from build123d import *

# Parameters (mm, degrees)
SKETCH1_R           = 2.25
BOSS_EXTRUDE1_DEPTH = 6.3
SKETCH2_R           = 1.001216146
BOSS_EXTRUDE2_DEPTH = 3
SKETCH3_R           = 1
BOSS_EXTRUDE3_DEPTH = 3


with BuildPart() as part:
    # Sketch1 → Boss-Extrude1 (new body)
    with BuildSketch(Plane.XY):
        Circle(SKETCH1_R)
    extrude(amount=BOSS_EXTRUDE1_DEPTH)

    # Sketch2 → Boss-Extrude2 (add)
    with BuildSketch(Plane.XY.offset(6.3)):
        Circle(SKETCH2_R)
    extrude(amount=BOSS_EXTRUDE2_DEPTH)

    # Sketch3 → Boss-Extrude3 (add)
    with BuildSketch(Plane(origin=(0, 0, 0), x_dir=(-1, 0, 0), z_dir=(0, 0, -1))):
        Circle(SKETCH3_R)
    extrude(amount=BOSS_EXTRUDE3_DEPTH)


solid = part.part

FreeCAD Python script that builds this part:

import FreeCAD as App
import Part
import Sketcher
from FreeCAD import Vector

doc = App.newDocument("Part")
body = doc.addObject("PartDesign::Body", "Body")

# Sketch on XY plane
sketch1 = doc.addObject("Sketcher::SketchObject", "Sketch")
body.addObject(sketch1)
sketch1.AttachmentSupport = (doc.XY_Plane, [""])
sketch1.MapMode = "FlatFace"
sketch1.addGeometry(Part.Circle(Vector(0, 0, 0), Vector(0, 0, 1), 2.25), False)
sketch1.addConstraint([
    Sketcher.Constraint("Coincident", 0, 3, -1, 1),
    Sketcher.Constraint("Diameter", 0, 4.5),
])
pad1 = doc.addObject("PartDesign::Pad", "Pad")
body.addObject(pad1)
pad1.Profile = sketch1
pad1.Length = 6.3

# Sketch on XY plane
sketch2 = doc.addObject("Sketcher::SketchObject", "Sketch001")
body.addObject(sketch2)
sketch2.AttachmentSupport = (doc.XY_Plane, [""])
sketch2.MapMode = "FlatFace"
sketch2.AttachmentOffset = App.Placement(Vector(0, 0, 6.3), App.Rotation())
sketch2.addGeometry(Part.Circle(Vector(0, 0, 0), Vector(0, 0, 1), 1.001216), False)
sketch2.addConstraint([
    Sketcher.Constraint("Coincident", 0, 3, -1, 1),
    Sketcher.Constraint("Diameter", 0, 2.002432),
])
pad2 = doc.addObject("PartDesign::Pad", "Pad001")
body.addObject(pad2)
pad2.Profile = sketch2
pad2.Length = 3

# Sketch on XY plane
sketch3 = doc.addObject("Sketcher::SketchObject", "Sketch002")
body.addObject(sketch3)
sketch3.AttachmentSupport = (doc.XY_Plane, [""])
sketch3.MapMode = "FlatFace"
sketch3.addGeometry(Part.Circle(Vector(0, 0, 0), Vector(0, 0, 1), 1), False)
sketch3.addConstraint([
    Sketcher.Constraint("Coincident", 0, 3, -1, 1),
    Sketcher.Constraint("Diameter", 0, 2.0),
])
pad3 = doc.addObject("PartDesign::Pad", "Pad002")
body.addObject(pad3)
pad3.Profile = sketch3
pad3.Length = 3
pad3.Reversed = True

doc.recompute()
